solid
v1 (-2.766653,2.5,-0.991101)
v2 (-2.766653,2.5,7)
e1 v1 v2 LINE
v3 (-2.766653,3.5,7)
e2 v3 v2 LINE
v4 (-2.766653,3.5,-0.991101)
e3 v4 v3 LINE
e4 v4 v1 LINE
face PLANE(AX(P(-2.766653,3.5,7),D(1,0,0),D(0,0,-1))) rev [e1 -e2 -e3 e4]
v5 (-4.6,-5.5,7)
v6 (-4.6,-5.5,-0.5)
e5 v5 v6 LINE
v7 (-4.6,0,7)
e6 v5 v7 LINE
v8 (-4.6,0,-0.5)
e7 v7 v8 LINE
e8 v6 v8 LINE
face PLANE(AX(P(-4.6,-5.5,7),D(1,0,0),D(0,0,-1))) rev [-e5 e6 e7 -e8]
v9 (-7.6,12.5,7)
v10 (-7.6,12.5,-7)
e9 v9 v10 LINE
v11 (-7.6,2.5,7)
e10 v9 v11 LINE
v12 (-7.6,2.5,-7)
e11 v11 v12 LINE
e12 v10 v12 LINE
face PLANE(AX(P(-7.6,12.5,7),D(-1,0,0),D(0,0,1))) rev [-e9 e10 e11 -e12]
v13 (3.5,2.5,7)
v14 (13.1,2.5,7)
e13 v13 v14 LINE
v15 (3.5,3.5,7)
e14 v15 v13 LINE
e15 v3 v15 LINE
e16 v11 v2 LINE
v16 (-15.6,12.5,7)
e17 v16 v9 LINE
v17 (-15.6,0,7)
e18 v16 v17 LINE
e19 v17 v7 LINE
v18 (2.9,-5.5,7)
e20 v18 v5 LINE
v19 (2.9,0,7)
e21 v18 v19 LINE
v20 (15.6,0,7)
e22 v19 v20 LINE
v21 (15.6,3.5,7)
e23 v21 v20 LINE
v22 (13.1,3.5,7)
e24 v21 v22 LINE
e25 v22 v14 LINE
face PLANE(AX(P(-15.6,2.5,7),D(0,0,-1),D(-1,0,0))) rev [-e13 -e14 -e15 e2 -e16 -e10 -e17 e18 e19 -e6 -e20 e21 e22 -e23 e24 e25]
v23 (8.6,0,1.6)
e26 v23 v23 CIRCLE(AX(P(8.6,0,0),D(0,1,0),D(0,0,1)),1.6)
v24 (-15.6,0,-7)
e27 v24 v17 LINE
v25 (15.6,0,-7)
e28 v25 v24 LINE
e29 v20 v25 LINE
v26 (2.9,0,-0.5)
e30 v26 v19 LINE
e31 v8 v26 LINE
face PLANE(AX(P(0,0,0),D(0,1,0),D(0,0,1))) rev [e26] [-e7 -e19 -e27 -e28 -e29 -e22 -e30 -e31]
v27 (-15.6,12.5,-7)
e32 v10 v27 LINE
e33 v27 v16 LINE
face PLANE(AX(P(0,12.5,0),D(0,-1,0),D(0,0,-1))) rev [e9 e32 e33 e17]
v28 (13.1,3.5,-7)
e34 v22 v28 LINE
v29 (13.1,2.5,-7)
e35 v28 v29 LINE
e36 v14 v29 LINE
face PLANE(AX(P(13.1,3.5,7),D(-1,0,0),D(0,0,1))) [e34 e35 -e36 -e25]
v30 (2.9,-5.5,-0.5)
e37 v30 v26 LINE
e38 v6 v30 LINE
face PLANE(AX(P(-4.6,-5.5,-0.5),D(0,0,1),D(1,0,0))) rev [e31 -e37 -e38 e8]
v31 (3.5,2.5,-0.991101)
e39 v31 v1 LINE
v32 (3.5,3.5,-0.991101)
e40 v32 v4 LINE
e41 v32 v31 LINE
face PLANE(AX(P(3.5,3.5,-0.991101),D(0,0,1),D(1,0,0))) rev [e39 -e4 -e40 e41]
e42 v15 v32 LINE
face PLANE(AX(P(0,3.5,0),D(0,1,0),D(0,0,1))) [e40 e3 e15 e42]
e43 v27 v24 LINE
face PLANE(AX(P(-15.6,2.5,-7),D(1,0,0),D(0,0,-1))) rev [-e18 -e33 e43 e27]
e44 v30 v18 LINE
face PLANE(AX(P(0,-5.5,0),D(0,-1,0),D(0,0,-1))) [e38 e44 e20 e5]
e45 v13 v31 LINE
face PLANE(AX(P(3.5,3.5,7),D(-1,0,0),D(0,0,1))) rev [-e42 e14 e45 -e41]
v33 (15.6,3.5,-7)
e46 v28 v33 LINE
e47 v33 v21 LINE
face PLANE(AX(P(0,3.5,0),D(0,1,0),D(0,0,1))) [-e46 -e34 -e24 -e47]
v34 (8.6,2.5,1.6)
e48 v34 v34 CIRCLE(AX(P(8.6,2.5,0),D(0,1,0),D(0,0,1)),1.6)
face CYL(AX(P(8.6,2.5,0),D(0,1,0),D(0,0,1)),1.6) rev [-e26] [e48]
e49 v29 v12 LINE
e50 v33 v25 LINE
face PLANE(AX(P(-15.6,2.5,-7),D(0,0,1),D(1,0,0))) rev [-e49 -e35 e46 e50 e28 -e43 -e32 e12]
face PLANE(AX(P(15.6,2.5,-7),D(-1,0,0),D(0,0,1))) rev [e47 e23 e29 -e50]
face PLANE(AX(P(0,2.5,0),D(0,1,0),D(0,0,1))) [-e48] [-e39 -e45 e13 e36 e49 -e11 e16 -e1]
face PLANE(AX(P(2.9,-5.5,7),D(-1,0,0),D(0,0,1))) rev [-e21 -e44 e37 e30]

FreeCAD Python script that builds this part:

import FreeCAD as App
import Part
import Sketcher
from FreeCAD import Vector
Q = App.Units.Quantity

doc = App.newDocument("Part")
params = doc.addObject("Spreadsheet::Sheet", "Params")
for row, (alias, value) in enumerate([
    ("sketch1_height", "14 mm"),
    ("sketch1_width", "31.2 mm"),
    ("pad1_length", "2.5 mm"),
    ("sketch2_width", "8 mm"),
    ("sketch2_height", "14 mm"),
    ("pad2_length", "10 mm"),
    ("sketch3_width", "7.5 mm"),
    ("pad3_length", "5.5 mm"),
    ("sketch4_diameter", "3.2 mm"),
    ("hole_diameter", "3.2 mm"),
    ("pad4_length", "1 mm"),
    ("sketch6_height", "14 mm"),
    ("sketch6_width", "2.5 mm"),
    ("pad5_length", "1 mm"),
], start=1):
    params.set(f"A{row}", alias)
    params.set(f"B{row}", "=" + value)
    params.setAlias(f"B{row}", alias)

body = doc.addObject("PartDesign::Body", "Body")

# Sketch on XZ plane
sketch1 = doc.addObject("Sketcher::SketchObject", "Sketch")
body.addObject(sketch1)
sketch1.AttachmentSupport = (doc.XZ_Plane, [""])
sketch1.MapMode = "FlatFace"
sketch1.addGeometry(Part.LineSegment(Vector(-16, -7, 0), Vector(-16, 7, 0)), False)
sketch1.addGeometry(Part.LineSegment(Vector(-16, 7, 0), Vector(16, 7, 0)), False)
sketch1.addGeometry(Part.LineSegment(Vector(16, 7, 0), Vector(16, -7, 0)), False)
sketch1.addGeometry(Part.LineSegment(Vector(16, -7, 0), Vector(-16, -7, 0)), False)
sketch1.addConstraint(Sketcher.Constraint("Coincident", 0, 2, 1, 1))
sketch1.addConstraint(Sketcher.Constraint("Coincident", 1, 2, 2, 1))
sketch1.addConstraint(Sketcher.Constraint("Coincident", 2, 2, 3, 1))
sketch1.addConstraint(Sketcher.Constraint("Coincident", 3, 2, 0, 1))
sketch1.addConstraint(Sketcher.Constraint("Vertical", 0))
sketch1.addConstraint(Sketcher.Constraint("Horizontal", 1))
sketch1.addConstraint(Sketcher.Constraint("Vertical", 2))
sketch1.addConstraint(Sketcher.Constraint("Horizontal", 3))
sketch1.addConstraint(Sketcher.Constraint("Symmetric", 0, 2, 2, 2, -1, 1))
sketch1.addConstraint(Sketcher.Constraint("DistanceY", 0, 1, 0, 2, Q("14 mm")))
sketch1.addConstraint(Sketcher.Constraint("DistanceX", 1, 1, 1, 2, Q("31.2 mm")))
sketch1.setExpression("Constraints[9]", "Params.sketch1_height")
sketch1.setExpression("Constraints[10]", "Params.sketch1_width")
pad1 = doc.addObject("PartDesign::Pad", "Pad")
body.addObject(pad1)
pad1.Profile = sketch1
pad1.setExpression("Length", "Params.pad1_length")
pad1.Reversed = True

# Sketch on XZ plane
sketch2 = doc.addObject("Sketcher::SketchObject", "Sketch001")
body.addObject(sketch2)
sketch2.AttachmentSupport = (doc.XZ_Plane, [""])
sketch2.MapMode = "FlatFace"
sketch2.AttachmentOffset = App.Placement(Vector(0, 0, -2.5), App.Rotation())
sketch2.addGeometry(Part.LineSegment(Vector(-16, -7, 0), Vector(-16, 7, 0)), False)
sketch2.addGeometry(Part.LineSegment(Vector(-16, 7, 0), Vector(-8, 7, 0)), False)
sketch2.addGeometry(Part.LineSegment(Vector(-8, 7, 0), Vector(-8, -7, 0)), False)
sketch2.addGeometry(Part.LineSegment(Vector(-8, -7, 0), Vector(-16, -7, 0)), False)
sketch2.addConstraint(Sketcher.Constraint("Coincident", 0, 2, 1, 1))
sketch2.addConstraint(Sketcher.Constraint("Coincident", 1, 2, 2, 1))
sketch2.addConstraint(Sketcher.Constraint("Coincident", 2, 2, 3, 1))
sketch2.addConstraint(Sketcher.Constraint("Coincident", 3, 2, 0, 1))
sketch2.addConstraint(Sketcher.Constraint("Vertical", 0))
sketch2.addConstraint(Sketcher.Constraint("Horizontal", 1))
sketch2.addConstraint(Sketcher.Constraint("Vertical", 2))
sketch2.addConstraint(Sketcher.Constraint("Horizontal", 3))
sketch2.addConstraint(Sketcher.Constraint("DistanceX", 1, 1, 1, 2, Q("8 mm")))
sketch2.addConstraint(Sketcher.Constraint("DistanceY", 0, 1, 0, 2, Q("14 mm")))
sketch2.addConstraint(Sketcher.Constraint("DistanceY", -1, 1, 0, 2, Q("7 mm")))
sketch2.addConstraint(Sketcher.Constraint("DistanceX", 0, 2, -1, 1, Q("15.6 mm")))
sketch2.setExpression("Constraints[8]", "Params.sketch2_width")
sketch2.setExpression("Constraints[9]", "Params.sketch2_height")
pad2 = doc.addObject("PartDesign::Pad", "Pad001")
body.addObject(pad2)
pad2.Profile = sketch2
pad2.setExpression("Length", "Params.pad2_length")
pad2.Reversed = True

# Sketch on XZ plane
sketch3 = doc.addObject("Sketcher::SketchObject", "Sketch002")
body.addObject(sketch3)
sketch3.AttachmentSupport = (doc.XZ_Plane, [""])
sketch3.MapMode = "FlatFace"
sketch3.addGeometry(Part.LineSegment(Vector(-5, 7, 0), Vector(-5, 0, 0)), False)
sketch3.addGeometry(Part.LineSegment(Vector(-5, 0, 0), Vector(3, 0, 0)), False)
sketch3.addGeometry(Part.LineSegment(Vector(3, 0, 0), Vector(3, 7, 0)), False)
sketch3.addGeometry(Part.LineSegment(Vector(3, 7, 0), Vector(-5, 7, 0)), False)
sketch3.addConstraint(Sketcher.Constraint("Coincident", 0, 2, 1, 1))
sketch3.addConstraint(Sketcher.Constraint("Coincident", 1, 2, 2, 1))
sketch3.addConstraint(Sketcher.Constraint("Coincident", 2, 2, 3, 1))
sketch3.addConstraint(Sketcher.Constraint("Coincident", 3, 2, 0, 1))
sketch3.addConstraint(Sketcher.Constraint("Vertical", 0))
sketch3.addConstraint(Sketcher.Constraint("Horizontal", 1))
sketch3.addConstraint(Sketcher.Constraint("Vertical", 2))
sketch3.addConstraint(Sketcher.Constraint("Horizontal", 3))
sketch3.addConstraint(Sketcher.Constraint("Equal", 3, 0))
sketch3.addConstraint(Sketcher.Constraint("DistanceX", 1, 1, 1, 2, Q("7.5 mm")))
sketch3.addConstraint(Sketcher.Constraint("DistanceY", -1, 1, 2, 2, Q("7 mm")))
sketch3.addConstraint(Sketcher.Constraint("DistanceX", 0, 2, -1, 1, Q("4.6 mm")))
sketch3.setExpression("Constraints[9]", "Params.sketch3_width")
pad3 = doc.addObject("PartDesign::Pad", "Pad002")
body.addObject(pad3)
pad3.Profile = sketch3
pad3.setExpression("Length", "Params.pad3_length")

# Sketch on XZ plane
sketch4 = doc.addObject("Sketcher::SketchObject", "Sketch003")
body.addObject(sketch4)
sketch4.AttachmentSupport = (doc.XZ_Plane, [""])
sketch4.MapMode = "FlatFace"
sketch4.AttachmentOffset = App.Placement(Vector(0, 0, -2.5), App.Rotation())
sketch4.addGeometry(Part.Circle(Vector(8.6, 0, 0), Vector(0, 0, 1), 1.6), False)
sketch4.addConstraint(Sketcher.Constraint("PointOnObject", 0, 3, -1))
sketch4.addConstraint(Sketcher.Constraint("Diameter", 0, Q("3.2 mm")))
sketch4.addConstraint(Sketcher.Constraint("DistanceX", -1, 1, 0, 3, Q("8.6 mm")))
sketch4.setExpression("Constraints[1]", "Params.sketch4_diameter")
doc.recompute()
hole = doc.addObject("PartDesign::Hole", "Hole")
body.addObject(hole)
hole.Profile = sketch4
hole.ThreadType = "None"
hole.setExpression("Diameter", "Params.hole_diameter")
hole.DepthType = "ThroughAll"
hole.Reversed = True

# Sketch on XZ plane
sketch5 = doc.addObject("Sketcher::SketchObject", "Sketch004")
body.addObject(sketch5)
sketch5.AttachmentSupport = (doc.XZ_Plane, [""])
sketch5.MapMode = "FlatFace"
sketch5.AttachmentOffset = App.Placement(Vector(0, 0, -2.5), App.Rotation())
sketch5.addGeometry(Part.LineSegment(Vector(-3, -1, 0), Vector(-3, 7, 0)), False)
sketch5.addGeometry(Part.LineSegment(Vector(-3, 7, 0), Vector(3, 7, 0)), False)
sketch5.addGeometry(Part.LineSegment(Vector(3, 7, 0), Vector(3, -1, 0)), False)
sketch5.addGeometry(Part.LineSegment(Vector(3, -1, 0), Vector(-3, -1, 0)), False)
sketch5.addConstraint(Sketcher.Constraint("Coincident", 0, 2, 1, 1))
sketch5.addConstraint(Sketcher.Constraint("Coincident", 1, 2, 2, 1))
sketch5.addConstraint(Sketcher.Constraint("Coincident", 2, 2, 3, 1))
sketch5.addConstraint(Sketcher.Constraint("Coincident", 3, 2, 0, 1))
sketch5.addConstraint(Sketcher.Constraint("Vertical", 0))
sketch5.addConstraint(Sketcher.Constraint("Horizontal", 1))
sketch5.addConstraint(Sketcher.Constraint("Vertical", 2))
sketch5.addConstraint(Sketcher.Constraint("Horizontal", 3))
sketch5.addConstraint(Sketcher.Constraint("DistanceY", -1, 1, 0, 2, Q("7 mm")))
sketch5.addConstraint(Sketcher.Constraint("DistanceX", -1, 1, 1, 2, Q("3.5 mm")))
sketch5.addConstraint(Sketcher.Constraint("DistanceY", 0, 1, 0, 2, Q("7.991101 mm")))
sketch5.addConstraint(Sketcher.Constraint("DistanceX", 1, 1, 1, 2, Q("6.266653 mm")))
pad4 = doc.addObject("PartDesign::Pad", "Pad003")
body.addObject(pad4)
pad4.Profile = sketch5
pad4.setExpression("Length", "Params.pad4_length")
pad4.Reversed = True

# Sketch on XZ plane
sketch6 = doc.addObject("Sketcher::SketchObject", "Sketch005")
body.addObject(sketch6)
sketch6.AttachmentSupport = (doc.XZ_Plane, [""])
sketch6.MapMode = "FlatFace"
sketch6.AttachmentOffset = App.Placement(Vector(0, 0, -2.5), App.Rotation())
sketch6.addGeometry(Part.LineSegment(Vector(13.1, 7, 0), Vector(13.1, -7, 0)), False)
sketch6.addGeometry(Part.LineSegment(Vector(13.1, -7, 0), Vector(15.6, -7, 0)), False)
sketch6.addGeometry(Part.LineSegment(Vector(15.6, -7, 0), Vector(15.6, 7, 0)), False)
sketch6.addGeometry(Part.LineSegment(Vector(15.6, 7, 0), Vector(13.1, 7, 0)), False)
sketch6.addConstraint(Sketcher.Constraint("Coincident", 0, 2, 1, 1))
sketch6.addConstraint(Sketcher.Constraint("Coincident", 1, 2, 2, 1))
sketch6.addConstraint(Sketcher.Constraint("Coincident", 2, 2, 3, 1))
sketch6.addConstraint(Sketcher.Constraint("Coincident", 3, 2, 0, 1))
sketch6.addConstraint(Sketcher.Constraint("Vertical", 0))
sketch6.addConstraint(Sketcher.Constraint("Horizontal", 1))
sketch6.addConstraint(Sketcher.Constraint("Vertical", 2))
sketch6.addConstraint(Sketcher.Constraint("Horizontal", 3))
sketch6.addConstraint(Sketcher.Constraint("DistanceY", 0, 2, 0, 1, Q("14 mm")))
sketch6.addConstraint(Sketcher.Constraint("DistanceX", 1, 1, 1, 2, Q("2.5 mm")))
sketch6.addConstraint(Sketcher.Constraint("DistanceY", 0, 2, -1, 1, Q("7 mm")))
sketch6.addConstraint(Sketcher.Constraint("DistanceX", -1, 1, 0, 2, Q("13.1 mm")))
sketch6.setExpression("Constraints[8]", "Params.sketch6_height")
sketch6.setExpression("Constraints[9]", "Params.sketch6_width")
pad5 = doc.addObject("PartDesign::Pad", "Pad004")
body.addObject(pad5)
pad5.Profile = sketch6
pad5.setExpression("Length", "Params.pad5_length")
pad5.Reversed = True

doc.recompute()
